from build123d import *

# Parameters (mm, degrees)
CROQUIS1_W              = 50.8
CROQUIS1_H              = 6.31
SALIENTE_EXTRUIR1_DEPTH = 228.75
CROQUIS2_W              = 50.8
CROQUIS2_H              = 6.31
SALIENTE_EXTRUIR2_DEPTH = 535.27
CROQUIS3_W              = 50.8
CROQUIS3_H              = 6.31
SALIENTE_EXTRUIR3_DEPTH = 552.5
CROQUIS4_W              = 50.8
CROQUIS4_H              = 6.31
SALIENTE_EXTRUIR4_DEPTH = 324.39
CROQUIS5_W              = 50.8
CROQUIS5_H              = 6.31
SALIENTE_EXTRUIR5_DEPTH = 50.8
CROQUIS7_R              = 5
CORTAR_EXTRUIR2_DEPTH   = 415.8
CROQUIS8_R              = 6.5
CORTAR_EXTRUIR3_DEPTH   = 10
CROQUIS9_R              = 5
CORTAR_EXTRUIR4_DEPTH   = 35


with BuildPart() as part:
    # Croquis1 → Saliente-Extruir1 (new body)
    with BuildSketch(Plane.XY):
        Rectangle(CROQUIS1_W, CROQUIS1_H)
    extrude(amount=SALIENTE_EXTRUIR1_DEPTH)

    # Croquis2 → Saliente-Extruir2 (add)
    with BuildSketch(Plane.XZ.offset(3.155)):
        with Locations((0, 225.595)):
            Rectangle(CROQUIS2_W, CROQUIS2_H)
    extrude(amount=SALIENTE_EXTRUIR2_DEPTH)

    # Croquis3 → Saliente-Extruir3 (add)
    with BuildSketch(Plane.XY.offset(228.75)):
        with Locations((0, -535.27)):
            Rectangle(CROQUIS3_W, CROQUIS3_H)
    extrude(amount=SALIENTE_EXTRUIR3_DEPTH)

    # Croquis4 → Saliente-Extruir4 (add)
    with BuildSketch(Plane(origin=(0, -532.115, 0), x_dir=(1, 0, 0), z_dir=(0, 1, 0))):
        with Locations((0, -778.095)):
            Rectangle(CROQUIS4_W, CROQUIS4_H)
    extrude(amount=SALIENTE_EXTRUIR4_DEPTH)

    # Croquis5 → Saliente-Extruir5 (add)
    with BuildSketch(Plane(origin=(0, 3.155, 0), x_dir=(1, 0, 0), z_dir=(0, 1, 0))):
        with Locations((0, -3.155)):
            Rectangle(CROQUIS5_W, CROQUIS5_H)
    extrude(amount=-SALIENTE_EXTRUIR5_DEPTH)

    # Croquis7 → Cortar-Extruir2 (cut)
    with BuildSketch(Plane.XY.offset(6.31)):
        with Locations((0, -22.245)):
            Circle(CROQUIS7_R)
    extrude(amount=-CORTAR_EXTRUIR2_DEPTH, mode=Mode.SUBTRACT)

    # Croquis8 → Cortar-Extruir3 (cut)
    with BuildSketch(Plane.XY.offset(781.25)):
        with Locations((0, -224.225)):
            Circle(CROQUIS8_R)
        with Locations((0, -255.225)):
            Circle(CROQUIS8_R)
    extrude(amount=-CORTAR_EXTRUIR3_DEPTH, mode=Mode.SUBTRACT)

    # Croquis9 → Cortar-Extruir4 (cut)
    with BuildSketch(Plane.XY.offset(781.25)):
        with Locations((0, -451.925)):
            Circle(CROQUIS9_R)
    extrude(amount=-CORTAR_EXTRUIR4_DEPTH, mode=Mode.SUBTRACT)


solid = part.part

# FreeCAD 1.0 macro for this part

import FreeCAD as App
import Part
import Sketcher
from FreeCAD import Vector
Q = App.Units.Quantity

doc = App.newDocument("Part")
body = doc.addObject("PartDesign::Body", "Body")

sketch1 = body.newObject("Sketcher::SketchObject", "Sketch")
sketch1.AttachmentSupport = (doc.getObject("XY_Plane"), [""])
sketch1.MapMode = "FlatFace"
sketch1.addGeometry([
    Part.LineSegment(Vector(-25, 3, 0), Vector(-25, -3, 0)),
    Part.LineSegment(Vector(-25, -3, 0), Vector(25, -3, 0)),
    Part.LineSegment(Vector(25, -3, 0), Vector(25, 3, 0)),
    Part.LineSegment(Vector(25, 3, 0), Vector(-25, 3, 0)),
], False)
sketch1.addConstraint([
    Sketcher.Constraint("Coincident", 0, 2, 1, 1),
    Sketcher.Constraint("Coincident", 1, 2, 2, 1),
    Sketcher.Constraint("Coincident", 2, 2, 3, 1),
    Sketcher.Constraint("Coincident", 3, 2, 0, 1),
    Sketcher.Constraint("Vertical", 0),
    Sketcher.Constraint("Horizontal", 1),
    Sketcher.Constraint("Vertical", 2),
    Sketcher.Constraint("Horizontal", 3),
    Sketcher.Constraint("Symmetric", 0, 2, 2, 2, -1, 1),
    Sketcher.Constraint("DistanceX", 1, 1, 1, 2, Q("50.8 mm")),
    Sketcher.Constraint("DistanceY", 0, 2, 0, 1, Q("6.31 mm")),
])
pad1 = body.newObject("PartDesign::Pad", "Pad")
pad1.Profile = sketch1
pad1.Length = 228.75

sketch2 = body.newObject("Sketcher::SketchObject", "Sketch001")
sketch2.AttachmentSupport = (doc.getObject("XZ_Plane"), [""])
sketch2.MapMode = "FlatFace"
sketch2.AttachmentOffset = App.Placement(Vector(0, 0, 3.155), App.Rotation())
sketch2.addGeometry([
    Part.LineSegment(Vector(-25, 229, 0), Vector(-25, 222, 0)),
    Part.LineSegment(Vector(-25, 222, 0), Vector(25, 222, 0)),
    Part.LineSegment(Vector(25, 222, 0), Vector(25, 229, 0)),
    Part.LineSegment(Vector(25, 229, 0), Vector(-25, 229, 0)),
], False)
sketch2.addConstraint([
    Sketcher.Constraint("Coincident", 0, 2, 1, 1),
    Sketcher.Constraint("Coincident", 1, 2, 2, 1),
    Sketcher.Constraint("Coincident", 2, 2, 3, 1),
    Sketcher.Constraint("Coincident", 3, 2, 0, 1),
    Sketcher.Constraint("Vertical", 0),
    Sketcher.Constraint("Horizontal", 1),
    Sketcher.Constraint("Vertical", 2),
    Sketcher.Constraint("Horizontal", 3),
    Sketcher.Constraint("DistanceX", 1, 1, 1, 2, Q("50.8 mm")),
    Sketcher.Constraint("DistanceY", 0, 2, 0, 1, Q("6.31 mm")),
    Sketcher.Constraint("DistanceX", 0, 2, -1, 1, Q("25.4 mm")),
    Sketcher.Constraint("DistanceY", -1, 1, 0, 2, Q("222.44 mm")),
])
pad2 = body.newObject("PartDesign::Pad", "Pad001")
pad2.Profile = sketch2
pad2.Length = 535.27

sketch3 = body.newObject("Sketcher::SketchObject", "Sketch002")
sketch3.AttachmentSupport = (doc.getObject("XY_Plane"), [""])
sketch3.MapMode = "FlatFace"
sketch3.AttachmentOffset = App.Placement(Vector(0, 0, 228.75), App.Rotation())
sketch3.addGeometry([
    Part.LineSegment(Vector(-25, -532, 0), Vector(-25, -538, 0)),
    Part.LineSegment(Vector(-25, -538, 0), Vector(25, -538, 0)),
    Part.LineSegment(Vector(25, -538, 0), Vector(25, -532, 0)),
    Part.LineSegment(Vector(25, -532, 0), Vector(-25, -532, 0)),
], False)
sketch3.addConstraint([
    Sketcher.Constraint("Coincident", 0, 2, 1, 1),
    Sketcher.Constraint("Coincident", 1, 2, 2, 1),
    Sketcher.Constraint("Coincident", 2, 2, 3, 1),
    Sketcher.Constraint("Coincident", 3, 2, 0, 1),
    Sketcher.Constraint("Vertical", 0),
    Sketcher.Constraint("Horizontal", 1),
    Sketcher.Constraint("Vertical", 2),
    Sketcher.Constraint("Horizontal", 3),
    Sketcher.Constraint("DistanceX", 1, 1, 1, 2, Q("50.8 mm")),
    Sketcher.Constraint("DistanceY", 0, 2, 0, 1, Q("6.31 mm")),
    Sketcher.Constraint("DistanceX", 0, 2, -1, 1, Q("25.4 mm")),
    Sketcher.Constraint("DistanceY", 0, 2, -1, 1, Q("538.425 mm")),
])
pad3 = body.newObject("PartDesign::Pad", "Pad002")
pad3.Profile = sketch3
pad3.Length = 552.5

sketch4 = body.newObject("Sketcher::SketchObject", "Sketch003")
sketch4.AttachmentSupport = (doc.getObject("XZ_Plane"), [""])
sketch4.MapMode = "FlatFace"
sketch4.AttachmentOffset = App.Placement(Vector(0, 0, 532.115), App.Rotation())
sketch4.addGeometry([
    Part.LineSegment(Vector(-25, 775, 0), Vector(-25, 781, 0)),
    Part.LineSegment(Vector(-25, 781, 0), Vector(25, 781, 0)),
    Part.LineSegment(Vector(25, 781, 0), Vector(25, 775, 0)),
    Part.LineSegment(Vector(25, 775, 0), Vector(-25, 775, 0)),
], False)
sketch4.addConstraint([
    Sketcher.Constraint("Coincident", 0, 2, 1, 1),
    Sketcher.Constraint("Coincident", 1, 2, 2, 1),
    Sketcher.Constraint("Coincident", 2, 2, 3, 1),
    Sketcher.Constraint("Coincident", 3, 2, 0, 1),
    Sketcher.Constraint("Vertical", 0),
    Sketcher.Constraint("Horizontal", 1),
    Sketcher.Constraint("Vertical", 2),
    Sketcher.Constraint("Horizontal", 3),
    Sketcher.Constraint("DistanceX", 1, 1, 1, 2, Q("50.8 mm")),
    Sketcher.Constraint("DistanceY", 0, 1, 0, 2, Q("6.31 mm")),
    Sketcher.Constraint("DistanceX", 0, 2, -1, 1, Q("25.4 mm")),
    Sketcher.Constraint("DistanceY", -1, 1, 0, 2, Q("781.25 mm")),
])
pad4 = body.newObject("PartDesign::Pad", "Pad003")
pad4.Profile = sketch4
pad4.Length = 324.39
pad4.Reversed = True

sketch5 = body.newObject("Sketcher::SketchObject", "Sketch004")
sketch5.AttachmentSupport = (doc.getObject("XZ_Plane"), [""])
sketch5.MapMode = "FlatFace"
sketch5.AttachmentOffset = App.Placement(Vector(0, 0, -3.155), App.Rotation())
sketch5.addGeometry([
    Part.LineSegment(Vector(-25, 0, 0), Vector(-25, 6, 0)),
    Part.LineSegment(Vector(-25, 6, 0), Vector(25, 6, 0)),
    Part.LineSegment(Vector(25, 6, 0), Vector(25, 0, 0)),
    Part.LineSegment(Vector(25, 0, 0), Vector(-25, 0, 0)),
], False)
sketch5.addConstraint([
    Sketcher.Constraint("Coincident", 0, 2, 1, 1),
    Sketcher.Constraint("Coincident", 1, 2, 2, 1),
    Sketcher.Constraint("Coincident", 2, 2, 3, 1),
    Sketcher.Constraint("Coincident", 3, 2, 0, 1),
    Sketcher.Constraint("Vertical", 0),
    Sketcher.Constraint("Horizontal", 1),
    Sketcher.Constraint("Vertical", 2),
    Sketcher.Constraint("Horizontal", 3),
    Sketcher.Constraint("Symmetric", 2, 2, 3, 2, -1, 1),
    Sketcher.Constraint("DistanceX", 1, 1, 1, 2, Q("50.8 mm")),
    Sketcher.Constraint("DistanceY", 0, 1, 0, 2, Q("6.31 mm")),
])
pad5 = body.newObject("PartDesign::Pad", "Pad004")
pad5.Profile = sketch5
pad5.Length = 50.8

sketch6 = body.newObject("Sketcher::SketchObject", "Sketch005")
sketch6.AttachmentSupport = (doc.getObject("XY_Plane"), [""])
sketch6.MapMode = "FlatFace"
sketch6.AttachmentOffset = App.Placement(Vector(0, 0, 6.31), App.Rotation())
sketch6.addGeometry(Part.Circle(Vector(0, -22, 0), Vector(0, 0, 1), 5), False)
sketch6.addConstraint([
    Sketcher.Constraint("PointOnObject", 0, 3, -2),
    Sketcher.Constraint("Diameter", 0, Q("10 mm")),
    Sketcher.Constraint("DistanceY", 0, 3, -1, 1, Q("22.245 mm")),
])
pocket1 = body.newObject("PartDesign::Pocket", "Pocket")
pocket1.Profile = sketch6
pocket1.Length = 415.8

sketch7 = body.newObject("Sketcher::SketchObject", "Sketch006")
sketch7.AttachmentSupport = (doc.getObject("XY_Plane"), [""])
sketch7.MapMode = "FlatFace"
sketch7.AttachmentOffset = App.Placement(Vector(0, 0, 781.25), App.Rotation())
sketch7.addGeometry([
    Part.Circle(Vector(0, -224, 0), Vector(0, 0, 1), 6),
    Part.Circle(Vector(0, -255, 0), Vector(0, 0, 1), 6),
], False)
sketch7.addConstraint([
    Sketcher.Constraint("Equal", 0, 1),
    Sketcher.Constraint("PointOnObject", 0, 3, -2),
    Sketcher.Constraint("PointOnObject", 1, 3, -2),
    Sketcher.Constraint("Diameter", 0, Q("13 mm")),
    Sketcher.Constraint("DistanceY", 1, 3, 0, 3, Q("31 mm")),
    Sketcher.Constraint("DistanceY", 0, 3, -1, 1, Q("224.225 mm")),
])
pocket2 = body.newObject("PartDesign::Pocket", "Pocket001")
pocket2.Profile = sketch7
pocket2.Length = 10

sketch8 = body.newObject("Sketcher::SketchObject", "Sketch007")
sketch8.AttachmentSupport = (doc.getObject("XY_Plane"), [""])
sketch8.MapMode = "FlatFace"
sketch8.AttachmentOffset = App.Placement(Vector(0, 0, 781.25), App.Rotation())
sketch8.addGeometry(Part.Circle(Vector(0, -452, 0), Vector(0, 0, 1), 5), False)
sketch8.addConstraint([
    Sketcher.Constraint("PointOnObject", 0, 3, -2),
    Sketcher.Constraint("Diameter", 0, Q("10 mm")),
    Sketcher.Constraint("DistanceY", 0, 3, -1, 1, Q("451.925 mm")),
])
pocket3 = body.newObject("PartDesign::Pocket", "Pocket002")
pocket3.Profile = sketch8
pocket3.Length = 35

doc.recompute()
